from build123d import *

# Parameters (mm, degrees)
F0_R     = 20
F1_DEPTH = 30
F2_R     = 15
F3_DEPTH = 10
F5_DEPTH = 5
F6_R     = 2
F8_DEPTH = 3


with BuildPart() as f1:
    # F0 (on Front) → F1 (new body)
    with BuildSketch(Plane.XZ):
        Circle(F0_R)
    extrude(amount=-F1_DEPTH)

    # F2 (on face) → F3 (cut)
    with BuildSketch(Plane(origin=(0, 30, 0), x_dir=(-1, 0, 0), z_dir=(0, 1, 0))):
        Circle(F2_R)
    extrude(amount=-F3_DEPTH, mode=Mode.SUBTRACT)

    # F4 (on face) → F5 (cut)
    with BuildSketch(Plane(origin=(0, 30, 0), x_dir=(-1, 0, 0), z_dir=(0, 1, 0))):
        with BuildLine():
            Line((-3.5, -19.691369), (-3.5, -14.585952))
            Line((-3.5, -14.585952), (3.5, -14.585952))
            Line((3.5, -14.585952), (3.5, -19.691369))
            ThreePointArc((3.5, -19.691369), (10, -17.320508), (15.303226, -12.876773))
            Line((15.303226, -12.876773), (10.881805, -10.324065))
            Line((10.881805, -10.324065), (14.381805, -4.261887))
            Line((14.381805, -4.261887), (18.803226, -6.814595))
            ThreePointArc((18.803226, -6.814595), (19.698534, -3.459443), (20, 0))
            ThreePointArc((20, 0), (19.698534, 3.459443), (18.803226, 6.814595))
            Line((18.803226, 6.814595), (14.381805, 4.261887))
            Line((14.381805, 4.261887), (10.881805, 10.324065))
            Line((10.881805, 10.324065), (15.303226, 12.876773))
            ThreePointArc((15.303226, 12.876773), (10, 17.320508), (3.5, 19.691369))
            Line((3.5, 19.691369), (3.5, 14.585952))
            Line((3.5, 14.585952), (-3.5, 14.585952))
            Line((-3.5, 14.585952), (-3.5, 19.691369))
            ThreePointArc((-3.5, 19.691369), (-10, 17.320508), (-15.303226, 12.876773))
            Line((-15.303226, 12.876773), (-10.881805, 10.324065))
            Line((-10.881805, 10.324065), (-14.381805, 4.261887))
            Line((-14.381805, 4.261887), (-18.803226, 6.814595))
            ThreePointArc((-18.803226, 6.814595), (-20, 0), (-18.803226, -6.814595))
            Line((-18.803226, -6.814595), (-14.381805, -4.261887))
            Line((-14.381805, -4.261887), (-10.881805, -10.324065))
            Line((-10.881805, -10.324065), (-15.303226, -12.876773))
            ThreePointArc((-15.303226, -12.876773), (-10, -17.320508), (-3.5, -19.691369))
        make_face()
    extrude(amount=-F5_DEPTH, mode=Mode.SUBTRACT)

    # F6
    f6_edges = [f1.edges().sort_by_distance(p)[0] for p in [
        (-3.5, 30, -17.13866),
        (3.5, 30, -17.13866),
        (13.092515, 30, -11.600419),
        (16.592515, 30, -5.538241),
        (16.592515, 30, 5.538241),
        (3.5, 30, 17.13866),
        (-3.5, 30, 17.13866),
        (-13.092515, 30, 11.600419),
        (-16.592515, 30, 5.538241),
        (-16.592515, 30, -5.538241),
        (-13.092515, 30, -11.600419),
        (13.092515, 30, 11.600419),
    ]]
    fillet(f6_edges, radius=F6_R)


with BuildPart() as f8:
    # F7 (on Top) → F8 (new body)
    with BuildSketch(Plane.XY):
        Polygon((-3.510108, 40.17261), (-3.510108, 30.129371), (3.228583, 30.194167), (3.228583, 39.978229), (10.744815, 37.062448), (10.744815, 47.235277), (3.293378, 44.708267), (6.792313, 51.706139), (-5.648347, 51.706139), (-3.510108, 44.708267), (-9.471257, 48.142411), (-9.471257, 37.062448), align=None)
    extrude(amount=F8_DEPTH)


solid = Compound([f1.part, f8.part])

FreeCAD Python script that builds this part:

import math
import FreeCAD as App
import Part
import Sketcher
from FreeCAD import Vector
Q = App.Units.Quantity


def edges_at(feature, points):
    """Names of the edges that pass closest to the given points."""
    edges = feature.Shape.Edges
    near = lambda p: min(range(len(edges)), key=lambda i: edges[i].distToShape(Part.Vertex(*p))[0])
    return sorted({f"Edge{near(p) + 1}" for p in points})

doc = App.newDocument("Part")
params = doc.addObject("Spreadsheet::Sheet", "Params")
for row, (alias, value) in enumerate([
    ("sketch1_diameter", "40 mm"),
    ("pad1_length", "30 mm"),
    ("sketch2_diameter", "30 mm"),
    ("pocket1_length", "10 mm"),
    ("sketch3_width", "7 mm"),
    ("sketch3_length", "7 mm"),
    ("pocket2_length", "5 mm"),
    ("fillet_radius", "2 mm"),
    ("pad2_length", "3 mm"),
], start=1):
    params.set(f"A{row}", alias)
    params.set(f"B{row}", "=" + value)
    params.setAlias(f"B{row}", alias)

body = doc.addObject("PartDesign::Body", "Body")

sketch1 = body.newObject("Sketcher::SketchObject", "Sketch")
sketch1.AttachmentSupport = (doc.getObject("XZ_Plane"), [""])
sketch1.MapMode = "FlatFace"
sketch1.addGeometry(Part.Circle(Vector(0, 0, 0), Vector(0, 0, 1), 20), False)
sketch1.addConstraint([
    Sketcher.Constraint("Coincident", 0, 3, -1, 1),
    Sketcher.Constraint("Diameter", 0, 40.0),
])
sketch1.setExpression("Constraints[1]", "Params.sketch1_diameter")
pad1 = body.newObject("PartDesign::Pad", "Pad")
pad1.Profile = sketch1
pad1.setExpression("Length", "Params.pad1_length")
pad1.Reversed = True

sketch2 = body.newObject("Sketcher::SketchObject", "Sketch001")
sketch2.AttachmentSupport = (doc.getObject("XZ_Plane"), [""])
sketch2.MapMode = "FlatFace"
sketch2.AttachmentOffset = App.Placement(Vector(0, 0, -30), App.Rotation())
sketch2.addGeometry(Part.Circle(Vector(0, 0, 0), Vector(0, 0, 1), 15), False)
sketch2.addConstraint([
    Sketcher.Constraint("Coincident", 0, 3, -1, 1),
    Sketcher.Constraint("Diameter", 0, 30.0),
])
sketch2.setExpression("Constraints[1]", "Params.sketch2_diameter")
pocket1 = body.newObject("PartDesign::Pocket", "Pocket")
pocket1.Profile = sketch2
pocket1.setExpression("Length", "Params.pocket1_length")
pocket1.Reversed = True

sketch3 = body.newObject("Sketcher::SketchObject", "Sketch002")
sketch3.AttachmentSupport = (doc.getObject("XZ_Plane"), [""])
sketch3.MapMode = "FlatFace"
sketch3.AttachmentOffset = App.Placement(Vector(0, 0, -30), App.Rotation())
sketch3.addGeometry([
    Part.LineSegment(Vector(4, -20, 0), Vector(4, -15, 0)),
    Part.LineSegment(Vector(4, -15, 0), Vector(-4, -15, 0)),
    Part.LineSegment(Vector(-4, -15, 0), Vector(-4, -20, 0)),
    Part.ArcOfCircle(Part.Circle(Vector(0, 0, 0), Vector(0, 0, 1), 20), math.radians(-140), math.radians(-100)),
    Part.LineSegment(Vector(-15, -13, 0), Vector(-11, -10, 0)),
    Part.LineSegment(Vector(-11, -10, 0), Vector(-14, -4, 0)),
    Part.LineSegment(Vector(-14, -4, 0), Vector(-19, -7, 0)),
    Part.ArcOfCircle(Part.Circle(Vector(0, 0, 0), Vector(0, 0, 1), 20), math.radians(-180), math.radians(-160.08)),
    Part.ArcOfCircle(Part.Circle(Vector(0, 0, 0), Vector(0, 0, 1), 20), math.radians(160.08), math.radians(180)),
    Part.LineSegment(Vector(-19, 7, 0), Vector(-14, 4, 0)),
    Part.LineSegment(Vector(-14, 4, 0), Vector(-11, 10, 0)),
    Part.LineSegment(Vector(-11, 10, 0), Vector(-15, 13, 0)),
    Part.ArcOfCircle(Part.Circle(Vector(0, 0, 0), Vector(0, 0, 1), 20), math.radians(100), math.radians(140)),
    Part.LineSegment(Vector(-4, 20, 0), Vector(-4, 15, 0)),
    Part.LineSegment(Vector(-4, 15, 0), Vector(4, 15, 0)),
    Part.LineSegment(Vector(4, 15, 0), Vector(4, 20, 0)),
    Part.ArcOfCircle(Part.Circle(Vector(0, 0, 0), Vector(0, 0, 1), 20), math.radians(40), math.radians(80)),
    Part.LineSegment(Vector(15, 13, 0), Vector(11, 10, 0)),
    Part.LineSegment(Vector(11, 10, 0), Vector(14, 4, 0)),
    Part.LineSegment(Vector(14, 4, 0), Vector(19, 7, 0)),
    Part.ArcOfCircle(Part.Circle(Vector(0, 0, 0), Vector(0, 0, 1), 20), math.radians(-20), math.radians(20)),
    Part.LineSegment(Vector(19, -7, 0), Vector(14, -4, 0)),
    Part.LineSegment(Vector(14, -4, 0), Vector(11, -10, 0)),
    Part.LineSegment(Vector(11, -10, 0), Vector(15, -13, 0)),
    Part.ArcOfCircle(Part.Circle(Vector(0, 0, 0), Vector(0, 0, 1), 20), math.radians(-80), math.radians(-40)),
], False)
sketch3.addConstraint([
    Sketcher.Constraint("Coincident", 0, 2, 1, 1),
    Sketcher.Constraint("Coincident", 1, 2, 2, 1),
    Sketcher.Constraint("Coincident", 2, 2, 3, 2),
    Sketcher.Constraint("Coincident", 3, 1, 4, 1),
    Sketcher.Constraint("Coincident", 4, 2, 5, 1),
    Sketcher.Constraint("Coincident", 5, 2, 6, 1),
    Sketcher.Constraint("Coincident", 6, 2, 7, 2),
    Sketcher.Constraint("Tangent", 7, 1, 8, 2),
    Sketcher.Constraint("Coincident", 8, 1, 9, 1),
    Sketcher.Constraint("Coincident", 9, 2, 10, 1),
    Sketcher.Constraint("Coincident", 10, 2, 11, 1),
    Sketcher.Constraint("Coincident", 11, 2, 12, 2),
    Sketcher.Constraint("Coincident", 12, 1, 13, 1),
    Sketcher.Constraint("Coincident", 13, 2, 14, 1),
    Sketcher.Constraint("Coincident", 14, 2, 15, 1),
    Sketcher.Constraint("Coincident", 15, 2, 16, 2),
    Sketcher.Constraint("Coincident", 16, 1, 17, 1),
    Sketcher.Constraint("Coincident", 17, 2, 18, 1),
    Sketcher.Constraint("Coincident", 18, 2, 19, 1),
    Sketcher.Constraint("Coincident", 19, 2, 20, 2),
    Sketcher.Constraint("Coincident", 20, 1, 21, 1),
    Sketcher.Constraint("Coincident", 21, 2, 22, 1),
    Sketcher.Constraint("Coincident", 22, 2, 23, 1),
    Sketcher.Constraint("Coincident", 23, 2, 24, 2),
    Sketcher.Constraint("Coincident", 24, 1, 0, 1),
    Sketcher.Constraint("Vertical", 0),
    Sketcher.Constraint("Horizontal", 1),
    Sketcher.Constraint("Vertical", 2),
    Sketcher.Constraint("Vertical", 13),
    Sketcher.Constraint("Horizontal", 14),
    Sketcher.Constraint("Vertical", 15),
    Sketcher.Constraint("Coincident", 3, 3, -1, 1),
    Sketcher.Constraint("Coincident", 12, 3, -1, 1),
    Sketcher.Constraint("Coincident", 16, 3, -1, 1),
    Sketcher.Constraint("Coincident", 20, 3, -1, 1),
    Sketcher.Constraint("Coincident", 24, 3, -1, 1),
    Sketcher.Constraint("Equal", 7, 8),
    Sketcher.Constraint("Equal", 3, 12),
    Sketcher.Constraint("Equal", 12, 16),
    Sketcher.Constraint("Equal", 16, 20),
    Sketcher.Constraint("Equal", 20, 24),
    Sketcher.Constraint("Symmetric", 0, 2, 13, 2, -1, 1),
    Sketcher.Constraint("Symmetric", 4, 2, 17, 2, -1, 1),
    Sketcher.Constraint("Symmetric", 5, 2, 18, 2, -1, 1),
    Sketcher.Constraint("Symmetric", 6, 2, 19, 2, -1, 1),
    Sketcher.Constraint("Symmetric", 8, 1, 20, 1, -1, 1),
    Sketcher.Constraint("Symmetric", 9, 2, 21, 2, -1, 1),
    Sketcher.Constraint("Symmetric", 10, 2, 22, 2, -1, 1),
    Sketcher.Constraint("Symmetric", 10, 2, 17, 2, -2),
    Sketcher.Constraint("Symmetric", 9, 2, 18, 2, -2),
    Sketcher.Constraint("PointOnObject", 7, 1, -1),
    Sketcher.Constraint("Perpendicular", 4, 5),
    Sketcher.Constraint("Perpendicular", 5, 6),
    Sketcher.Constraint("Perpendicular", 9, 10),
    Sketcher.Constraint("Perpendicular", 10, 11),
    Sketcher.Constraint("Parallel", 6, 17),
    Sketcher.Constraint("Perpendicular", 22, 23),
    Sketcher.Constraint("Horizontal", 12, 1, 15, 2),
    Sketcher.Constraint("Horizontal", 2, 2, 24, 1),
    Sketcher.Constraint("Equal", 4, 6),
    Sketcher.Constraint("DistanceX", 1, 2, 1, 1, 7.0),
    Sketcher.Constraint("Angle", 4, Q("29.999994 deg")),
    Sketcher.Constraint("Distance", 5, 7.0),
    Sketcher.Constraint("DistanceX", 7, 1, -1, 1, 20.0),
    Sketcher.Constraint("Radius", 7, 20.000031),
    Sketcher.Constraint("DistanceX", 4, 2, 20, 3, 10.8818),
    Sketcher.Constraint("DistanceY", 0, 1, 0, 2, 5.105417),
])
sketch3.setExpression("Constraints[60]", "Params.sketch3_width")
sketch3.setExpression("Constraints[62]", "Params.sketch3_length")
pocket2 = body.newObject("PartDesign::Pocket", "Pocket001")
pocket2.Profile = sketch3
pocket2.setExpression("Length", "Params.pocket2_length")
pocket2.Reversed = True
doc.recompute()

fillet = body.newObject("PartDesign::Fillet", "Fillet")
fillet.Base = (pocket2, edges_at(pocket2, [
    (-3.5, 30, -17.139),
    (3.5, 30, -17.139),
    (13.093, 30, -11.6),
    (16.593, 30, -5.538),
    (16.593, 30, 5.538),
    (3.5, 30, 17.139),
    (-3.5, 30, 17.139),
    (-13.093, 30, 11.6),
    (-16.593, 30, 5.538),
    (-16.593, 30, -5.538),
    (-13.093, 30, -11.6),
    (13.093, 30, 11.6),
]))
fillet.setExpression("Radius", "Params.fillet_radius")
body2 = doc.addObject("PartDesign::Body", "Body001")

sketch4 = body2.newObject("Sketcher::SketchObject", "Sketch003")
sketch4.AttachmentSupport = (doc.getObject("XY_Plane001"), [""])
sketch4.MapMode = "FlatFace"
sketch4.addGeometry([
    Part.LineSegment(Vector(-4, 40, 0), Vector(-4, 30, 0)),
    Part.LineSegment(Vector(-4, 30, 0), Vector(3, 30, 0)),
    Part.LineSegment(Vector(3, 30, 0), Vector(3, 40, 0)),
    Part.LineSegment(Vector(3, 40, 0), Vector(11, 37, 0)),
    Part.LineSegment(Vector(11, 37, 0), Vector(11, 47, 0)),
    Part.LineSegment(Vector(11, 47, 0), Vector(3, 45, 0)),
    Part.LineSegment(Vector(3, 45, 0), Vector(7, 52, 0)),
    Part.LineSegment(Vector(7, 52, 0), Vector(-6, 52, 0)),
    Part.LineSegment(Vector(-6, 52, 0), Vector(-4, 45, 0)),
    Part.LineSegment(Vector(-4, 45, 0), Vector(-9, 48, 0)),
    Part.LineSegment(Vector(-9, 48, 0), Vector(-9, 37, 0)),
    Part.LineSegment(Vector(-9, 37, 0), Vector(-4, 40, 0)),
], False)
sketch4.addConstraint([
    Sketcher.Constraint("Coincident", 0, 2, 1, 1),
    Sketcher.Constraint("Coincident", 1, 2, 2, 1),
    Sketcher.Constraint("Coincident", 2, 2, 3, 1),
    Sketcher.Constraint("Coincident", 3, 2, 4, 1),
    Sketcher.Constraint("Coincident", 4, 2, 5, 1),
    Sketcher.Constraint("Coincident", 5, 2, 6, 1),
    Sketcher.Constraint("Coincident", 6, 2, 7, 1),
    Sketcher.Constraint("Coincident", 7, 2, 8, 1),
    Sketcher.Constraint("Coincident", 8, 2, 9, 1),
    Sketcher.Constraint("Coincident", 9, 2, 10, 1),
    Sketcher.Constraint("Coincident", 10, 2, 11, 1),
    Sketcher.Constraint("Coincident", 11, 2, 0, 1),
    Sketcher.Constraint("Vertical", 0),
    Sketcher.Constraint("Vertical", 2),
    Sketcher.Constraint("Vertical", 4),
    Sketcher.Constraint("Horizontal", 7),
    Sketcher.Constraint("Vertical", 10),
    Sketcher.Constraint("Horizontal", 5, 2, 8, 2),
    Sketcher.Constraint("Horizontal", 3, 2, 10, 2),
    Sketcher.Constraint("Vertical", 0, 2, 8, 2),
    Sketcher.Constraint("DistanceX", 7, 2, 7, 1, 12.44066),
    Sketcher.Constraint("DistanceY", 0, 2, 0, 1, 10.043239),
    Sketcher.Constraint("DistanceY", 2, 1, 2, 2, 9.784062),
    Sketcher.Constraint("DistanceY", 4, 1, 4, 2, 10.172829),
    Sketcher.Constraint("DistanceY", 1, 2, 5, 2, 14.5141),
    Sketcher.Constraint("DistanceX", 6, 2, 4, 2, 3.952502),
    Sketcher.Constraint("DistanceY", 11, 2, 9, 2, 7.969801),
    Sketcher.Constraint("Distance", 3, 8.06198),
    Sketcher.Constraint("Distance", 5, 7.868271),
    Sketcher.Constraint("Distance", 6, 7.823858),
    Sketcher.Constraint("Distance", 8, 7.317259),
    Sketcher.Constraint("Distance", 9, 6.879582),
    Sketcher.Constraint("Distance", 11, 6.72372),
    Sketcher.Constraint("DistanceY", 10, 2, 10, 1, 11.079963),
    Sketcher.Constraint("DistanceY", -1, 1, 0, 2, 30.129371),
    Sketcher.Constraint("DistanceX", -1, 1, 5, 2, 3.293378),
])
pad2 = body2.newObject("PartDesign::Pad", "Pad001")
pad2.Profile = sketch4
pad2.setExpression("Length", "Params.pad2_length")

doc.recompute()
